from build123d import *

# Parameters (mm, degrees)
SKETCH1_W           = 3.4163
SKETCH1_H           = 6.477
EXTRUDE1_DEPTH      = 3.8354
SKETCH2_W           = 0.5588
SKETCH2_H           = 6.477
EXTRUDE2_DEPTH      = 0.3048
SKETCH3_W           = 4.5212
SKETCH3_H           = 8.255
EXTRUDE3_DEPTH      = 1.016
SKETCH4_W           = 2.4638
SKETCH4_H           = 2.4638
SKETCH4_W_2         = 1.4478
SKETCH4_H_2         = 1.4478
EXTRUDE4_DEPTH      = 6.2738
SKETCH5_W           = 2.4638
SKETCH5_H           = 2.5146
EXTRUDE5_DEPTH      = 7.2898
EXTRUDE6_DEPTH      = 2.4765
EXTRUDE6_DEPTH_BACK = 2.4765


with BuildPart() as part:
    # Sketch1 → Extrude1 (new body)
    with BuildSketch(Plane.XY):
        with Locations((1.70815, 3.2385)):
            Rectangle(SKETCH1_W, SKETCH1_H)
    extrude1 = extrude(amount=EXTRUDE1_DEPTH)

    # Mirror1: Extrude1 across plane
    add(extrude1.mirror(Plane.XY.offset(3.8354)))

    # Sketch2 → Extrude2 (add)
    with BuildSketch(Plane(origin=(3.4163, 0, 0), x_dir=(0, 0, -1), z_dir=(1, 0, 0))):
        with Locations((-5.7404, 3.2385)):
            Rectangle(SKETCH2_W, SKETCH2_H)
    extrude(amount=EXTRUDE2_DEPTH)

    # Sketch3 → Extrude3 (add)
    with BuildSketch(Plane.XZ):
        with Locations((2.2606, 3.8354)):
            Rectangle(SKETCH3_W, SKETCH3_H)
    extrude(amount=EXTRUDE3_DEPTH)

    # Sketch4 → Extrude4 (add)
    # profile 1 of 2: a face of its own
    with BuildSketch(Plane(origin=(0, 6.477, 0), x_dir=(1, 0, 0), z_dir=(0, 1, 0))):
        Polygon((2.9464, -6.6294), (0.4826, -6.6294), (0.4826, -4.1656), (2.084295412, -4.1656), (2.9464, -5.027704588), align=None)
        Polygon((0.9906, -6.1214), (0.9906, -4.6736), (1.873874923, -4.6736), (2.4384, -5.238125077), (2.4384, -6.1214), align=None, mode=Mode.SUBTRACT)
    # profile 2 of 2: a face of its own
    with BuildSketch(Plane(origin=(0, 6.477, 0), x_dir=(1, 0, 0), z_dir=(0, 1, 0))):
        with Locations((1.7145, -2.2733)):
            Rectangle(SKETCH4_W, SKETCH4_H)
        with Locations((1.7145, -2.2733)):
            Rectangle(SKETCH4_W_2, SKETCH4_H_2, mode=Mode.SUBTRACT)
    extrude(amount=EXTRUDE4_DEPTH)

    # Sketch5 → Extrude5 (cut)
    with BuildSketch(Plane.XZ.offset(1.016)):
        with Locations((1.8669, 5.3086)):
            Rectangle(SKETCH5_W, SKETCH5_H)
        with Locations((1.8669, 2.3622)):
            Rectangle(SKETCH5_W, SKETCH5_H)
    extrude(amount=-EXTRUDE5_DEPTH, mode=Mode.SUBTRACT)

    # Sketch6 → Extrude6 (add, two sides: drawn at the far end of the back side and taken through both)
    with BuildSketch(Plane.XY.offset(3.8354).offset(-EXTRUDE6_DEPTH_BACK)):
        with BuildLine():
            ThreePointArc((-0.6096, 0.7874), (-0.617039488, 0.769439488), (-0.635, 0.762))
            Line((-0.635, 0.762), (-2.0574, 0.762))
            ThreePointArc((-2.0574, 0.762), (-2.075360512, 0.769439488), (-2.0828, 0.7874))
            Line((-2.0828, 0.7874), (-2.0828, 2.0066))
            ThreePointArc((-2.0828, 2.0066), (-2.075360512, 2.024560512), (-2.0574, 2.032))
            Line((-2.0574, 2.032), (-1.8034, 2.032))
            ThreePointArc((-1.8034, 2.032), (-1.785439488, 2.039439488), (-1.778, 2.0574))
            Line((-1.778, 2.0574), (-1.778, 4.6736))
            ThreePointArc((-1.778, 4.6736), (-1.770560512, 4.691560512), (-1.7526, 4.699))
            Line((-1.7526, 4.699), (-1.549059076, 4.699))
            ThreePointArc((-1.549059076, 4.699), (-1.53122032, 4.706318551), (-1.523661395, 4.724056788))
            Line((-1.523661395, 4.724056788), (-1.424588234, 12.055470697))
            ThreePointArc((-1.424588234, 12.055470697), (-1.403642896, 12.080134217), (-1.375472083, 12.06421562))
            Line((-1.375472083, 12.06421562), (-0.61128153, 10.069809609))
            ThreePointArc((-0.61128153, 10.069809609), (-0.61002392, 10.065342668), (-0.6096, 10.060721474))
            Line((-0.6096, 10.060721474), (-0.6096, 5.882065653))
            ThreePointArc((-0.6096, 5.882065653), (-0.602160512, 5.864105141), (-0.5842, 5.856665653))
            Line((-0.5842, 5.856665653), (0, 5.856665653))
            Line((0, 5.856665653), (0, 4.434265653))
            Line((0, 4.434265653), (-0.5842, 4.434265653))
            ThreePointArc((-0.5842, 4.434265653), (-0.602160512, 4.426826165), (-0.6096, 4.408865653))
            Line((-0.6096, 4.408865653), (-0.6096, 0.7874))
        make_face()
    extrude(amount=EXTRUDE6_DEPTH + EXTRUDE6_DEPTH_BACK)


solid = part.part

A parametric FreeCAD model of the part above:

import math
import FreeCAD as App
import Part
import Sketcher

V = App.Vector
Q = App.Units.Quantity

doc = App.newDocument("Part")
params = doc.addObject("Spreadsheet::Sheet", "Params")
for row, (alias, value) in enumerate([
    ("sketch1_height", "0.255 in"),
    ("pad1_length", "0.151 in"),
    ("sketch2_width", "0.255 in"),
    ("sketch2_height", "0.022 in"),
    ("pad2_length", "0.012 in"),
    ("sketch3_width", "0.178 in"),
    ("sketch3_height", "0.325 in"),
    ("pad3_length", "0.04 in"),
    ("sketch4_width", "0.097 in"),
    ("sketch4_width2", "0.057 in"),
    ("sketch4_length", "0.048 in"),
    ("pad4_length", "0.247 in"),
    ("sketch5_width", "0.097 in"),
    ("sketch5_height", "0.099 in"),
    ("pocket1_length", "0.287 in"),
    ("sketch6_radius", "0.001 in"),
    ("sketch6_width", "0.01 in"),
    ("sketch6_width2", "0.023 in"),
    ("sketch6_width3", "0.056 in"),
    ("sketch6_height", "0.103 in"),
    ("pad5_length", "0.0975 in"),
    ("pad5_length2", "0.0975 in"),
], start=1):
    params.set(f"A{row}", alias)
    params.set(f"B{row}", "=" + value)
    params.setAlias(f"B{row}", alias)

body = doc.addObject("PartDesign::Body", "Body")

sketch1 = body.newObject("Sketcher::SketchObject", "Sketch")
sketch1.AttachmentSupport = (doc.getObject("XY_Plane"), [""])
sketch1.MapMode = "FlatFace"
sketch1.addGeometry(Part.LineSegment(V(0, 6.5, 0), V(0, 0, 0)), False)
sketch1.addGeometry(Part.LineSegment(V(0, 0, 0), V(3.4, 0, 0)), False)
sketch1.addGeometry(Part.LineSegment(V(3.4, 0, 0), V(3.4, 6.5, 0)), False)
sketch1.addGeometry(Part.LineSegment(V(3.4, 6.5, 0), V(0, 6.5, 0)), False)
sketch1.addConstraint(Sketcher.Constraint("Coincident", 0, 2, 1, 1))
sketch1.addConstraint(Sketcher.Constraint("Coincident", 1, 2, 2, 1))
sketch1.addConstraint(Sketcher.Constraint("Coincident", 2, 2, 3, 1))
sketch1.addConstraint(Sketcher.Constraint("Coincident", 3, 2, 0, 1))
sketch1.addConstraint(Sketcher.Constraint("Vertical", 0))
sketch1.addConstraint(Sketcher.Constraint("Horizontal", 1))
sketch1.addConstraint(Sketcher.Constraint("Vertical", 2))
sketch1.addConstraint(Sketcher.Constraint("Horizontal", 3))
sketch1.addConstraint(Sketcher.Constraint("Coincident", 0, 2, -1, 1))
sketch1.addConstraint(Sketcher.Constraint("DistanceY", 0, 2, 0, 1, Q("0.255 in")))
sketch1.addConstraint(Sketcher.Constraint("DistanceX", 1, 1, 1, 2, Q("0.1345 in")))
sketch1.setExpression("Constraints[9]", "Params.sketch1_height")
pad1 = body.newObject("PartDesign::Pad", "Pad")
pad1.Profile = sketch1
pad1.setExpression("Length", "Params.pad1_length")
doc.recompute()

datumplane = body.newObject("PartDesign::Plane", "DatumPlane")
datumplane.AttachmentSupport = (doc.getObject("XY_Plane"), [""])
datumplane.MapMode = "FlatFace"
datumplane.AttachmentOffset = App.Placement(V(0, 0, 0.151 * 25.4), App.Rotation())
mirrored = body.newObject("PartDesign::Mirrored", "Mirrored")
mirrored.Originals = [pad1]
mirrored.MirrorPlane = (datumplane, [""])
body.Tip = mirrored

sketch2 = body.newObject("Sketcher::SketchObject", "Sketch001")
sketch2.AttachmentSupport = (doc.getObject("YZ_Plane"), [""])
sketch2.MapMode = "FlatFace"
sketch2.AttachmentOffset = App.Placement(V(0, 0, 0.1345 * 25.4), App.Rotation())
sketch2.addGeometry(Part.LineSegment(V(6.5, 6, 0), V(0, 6, 0)), False)
sketch2.addGeometry(Part.LineSegment(V(0, 6, 0), V(0, 5.5, 0)), False)
sketch2.addGeometry(Part.LineSegment(V(0, 5.5, 0), V(6.5, 5.5, 0)), False)
sketch2.addGeometry(Part.LineSegment(V(6.5, 5.5, 0), V(6.5, 6, 0)), False)
sketch2.addConstraint(Sketcher.Constraint("Coincident", 0, 2, 1, 1))
sketch2.addConstraint(Sketcher.Constraint("Coincident", 1, 2, 2, 1))
sketch2.addConstraint(Sketcher.Constraint("Coincident", 2, 2, 3, 1))
sketch2.addConstraint(Sketcher.Constraint("Coincident", 3, 2, 0, 1))
sketch2.addConstraint(Sketcher.Constraint("Horizontal", 0))
sketch2.addConstraint(Sketcher.Constraint("Vertical", 1))
sketch2.addConstraint(Sketcher.Constraint("Horizontal", 2))
sketch2.addConstraint(Sketcher.Constraint("Vertical", 3))
sketch2.addConstraint(Sketcher.Constraint("PointOnObject", 0, 2, -2))
sketch2.addConstraint(Sketcher.Constraint("DistanceX", 0, 2, 0, 1, Q("0.255 in")))
sketch2.addConstraint(Sketcher.Constraint("DistanceY", 1, 2, 1, 1, Q("0.022 in")))
sketch2.addConstraint(Sketcher.Constraint("DistanceY", -1, 1, 0, 2, Q("0.237 in")))
sketch2.setExpression("Constraints[9]", "Params.sketch2_width")
sketch2.setExpression("Constraints[10]", "Params.sketch2_height")
pad2 = body.newObject("PartDesign::Pad", "Pad001")
pad2.Profile = sketch2
pad2.setExpression("Length", "Params.pad2_length")

sketch3 = body.newObject("Sketcher::SketchObject", "Sketch002")
sketch3.AttachmentSupport = (doc.getObject("XZ_Plane"), [""])
sketch3.MapMode = "FlatFace"
sketch3.addGeometry(Part.LineSegment(V(0, 8, 0), V(0, -0.3, 0)), False)
sketch3.addGeometry(Part.LineSegment(V(0, -0.3, 0), V(4.5, -0.3, 0)), False)
sketch3.addGeometry(Part.LineSegment(V(4.5, -0.3, 0), V(4.5, 8, 0)), False)
sketch3.addGeometry(Part.LineSegment(V(4.5, 8, 0), V(0, 8, 0)), False)
sketch3.addConstraint(Sketcher.Constraint("Coincident", 0, 2, 1, 1))
sketch3.addConstraint(Sketcher.Constraint("Coincident", 1, 2, 2, 1))
sketch3.addConstraint(Sketcher.Constraint("Coincident", 2, 2, 3, 1))
sketch3.addConstraint(Sketcher.Constraint("Coincident", 3, 2, 0, 1))
sketch3.addConstraint(Sketcher.Constraint("Vertical", 0))
sketch3.addConstraint(Sketcher.Constraint("Horizontal", 1))
sketch3.addConstraint(Sketcher.Constraint("Vertical", 2))
sketch3.addConstraint(Sketcher.Constraint("Horizontal", 3))
sketch3.addConstraint(Sketcher.Constraint("PointOnObject", 0, 2, -2))
sketch3.addConstraint(Sketcher.Constraint("DistanceX", 1, 1, 1, 2, Q("0.178 in")))
sketch3.addConstraint(Sketcher.Constraint("DistanceY", 0, 2, 0, 1, Q("0.325 in")))
sketch3.addConstraint(Sketcher.Constraint("DistanceY", 0, 2, -1, 1, Q("0.0115 in")))
sketch3.setExpression("Constraints[9]", "Params.sketch3_width")
sketch3.setExpression("Constraints[10]", "Params.sketch3_height")
pad3 = body.newObject("PartDesign::Pad", "Pad002")
pad3.Profile = sketch3
pad3.setExpression("Length", "Params.pad3_length")

sketch4 = body.newObject("Sketcher::SketchObject", "Sketch003")
sketch4.AttachmentSupport = (doc.getObject("XZ_Plane"), [""])
sketch4.MapMode = "FlatFace"
sketch4.AttachmentOffset = App.Placement(V(0, 0, -0.255 * 25.4), App.Rotation())
sketch4.addGeometry(Part.LineSegment(V(0.5, 6.6, 0), V(2.9, 6.6, 0)), False)
sketch4.addGeometry(Part.LineSegment(V(2.9, 6.6, 0), V(2.9, 5, 0)), False)
sketch4.addGeometry(Part.LineSegment(V(2.9, 5, 0), V(2.1, 4.2, 0)), False)
sketch4.addGeometry(Part.LineSegment(V(2.1, 4.2, 0), V(0.5, 4.2, 0)), False)
sketch4.addGeometry(Part.LineSegment(V(0.5, 4.2, 0), V(0.5, 6.6, 0)), False)
sketch4.addGeometry(Part.LineSegment(V(1, 6.1, 0), V(1, 4.7, 0)), False)
sketch4.addGeometry(Part.LineSegment(V(1, 4.7, 0), V(1.9, 4.7, 0)), False)
sketch4.addGeometry(Part.LineSegment(V(1.9, 4.7, 0), V(2.4, 5.2, 0)), False)
sketch4.addGeometry(Part.LineSegment(V(2.4, 5.2, 0), V(2.4, 6.1, 0)), False)
sketch4.addGeometry(Part.LineSegment(V(2.4, 6.1, 0), V(1, 6.1, 0)), False)
sketch4.addGeometry(Part.LineSegment(V(0.5, 1, 0), V(0.5, 3.5, 0)), False)
sketch4.addGeometry(Part.LineSegment(V(0.5, 3.5, 0), V(2.9, 3.5, 0)), False)
sketch4.addGeometry(Part.LineSegment(V(2.9, 3.5, 0), V(2.9, 1, 0)), False)
sketch4.addGeometry(Part.LineSegment(V(2.9, 1, 0), V(0.5, 1, 0)), False)
sketch4.addGeometry(Part.LineSegment(V(2.4, 3, 0), V(1, 3, 0)), False)
sketch4.addGeometry(Part.LineSegment(V(1, 3, 0), V(1, 1.5, 0)), False)
sketch4.addGeometry(Part.LineSegment(V(1, 1.5, 0), V(2.4, 1.5, 0)), False)
sketch4.addGeometry(Part.LineSegment(V(2.4, 1.5, 0), V(2.4, 3, 0)), False)
sketch4.addConstraint(Sketcher.Constraint("Coincident", 0, 2, 1, 1))
sketch4.addConstraint(Sketcher.Constraint("Coincident", 1, 2, 2, 1))
sketch4.addConstraint(Sketcher.Constraint("Coincident", 2, 2, 3, 1))
sketch4.addConstraint(Sketcher.Constraint("Coincident", 3, 2, 4, 1))
sketch4.addConstraint(Sketcher.Constraint("Coincident", 4, 2, 0, 1))
sketch4.addConstraint(Sketcher.Constraint("Coincident", 5, 2, 6, 1))
sketch4.addConstraint(Sketcher.Constraint("Coincident", 6, 2, 7, 1))
sketch4.addConstraint(Sketcher.Constraint("Coincident", 7, 2, 8, 1))
sketch4.addConstraint(Sketcher.Constraint("Coincident", 8, 2, 9, 1))
sketch4.addConstraint(Sketcher.Constraint("Coincident", 9, 2, 5, 1))
sketch4.addConstraint(Sketcher.Constraint("Coincident", 10, 2, 11, 1))
sketch4.addConstraint(Sketcher.Constraint("Coincident", 11, 2, 12, 1))
sketch4.addConstraint(Sketcher.Constraint("Coincident", 12, 2, 13, 1))
sketch4.addConstraint(Sketcher.Constraint("Coincident", 13, 2, 10, 1))
sketch4.addConstraint(Sketcher.Constraint("Coincident", 14, 2, 15, 1))
sketch4.addConstraint(Sketcher.Constraint("Coincident", 15, 2, 16, 1))
sketch4.addConstraint(Sketcher.Constraint("Coincident", 16, 2, 17, 1))
sketch4.addConstraint(Sketcher.Constraint("Coincident", 17, 2, 14, 1))
sketch4.addConstraint(Sketcher.Constraint("Horizontal", 0))
sketch4.addConstraint(Sketcher.Constraint("Vertical", 1))
sketch4.addConstraint(Sketcher.Constraint("Horizontal", 3))
sketch4.addConstraint(Sketcher.Constraint("Vertical", 4))
sketch4.addConstraint(Sketcher.Constraint("Vertical", 5))
sketch4.addConstraint(Sketcher.Constraint("Horizontal", 6))
sketch4.addConstraint(Sketcher.Constraint("Vertical", 8))
sketch4.addConstraint(Sketcher.Constraint("Horizontal", 9))
sketch4.addConstraint(Sketcher.Constraint("Vertical", 10))
sketch4.addConstraint(Sketcher.Constraint("Horizontal", 11))
sketch4.addConstraint(Sketcher.Constraint("Vertical", 12))
sketch4.addConstraint(Sketcher.Constraint("Horizontal", 13))
sketch4.addConstraint(Sketcher.Constraint("Horizontal", 14))
sketch4.addConstraint(Sketcher.Constraint("Vertical", 15))
sketch4.addConstraint(Sketcher.Constraint("Horizontal", 16))
sketch4.addConstraint(Sketcher.Constraint("Vertical", 17))
sketch4.addConstraint(Sketcher.Constraint("Parallel", 2, 7))
sketch4.addConstraint(Sketcher.Constraint("Vertical", 4, 2, 10, 2))
sketch4.addConstraint(Sketcher.Constraint("Vertical", 1, 2, 11, 2))
sketch4.addConstraint(Sketcher.Constraint("Vertical", 9, 2, 14, 2))
sketch4.addConstraint(Sketcher.Constraint("Vertical", 8, 2, 16, 2))
sketch4.addConstraint(Sketcher.Constraint("Equal", 3, 1))
sketch4.addConstraint(Sketcher.Constraint("Equal", 13, 4))
sketch4.addConstraint(Sketcher.Constraint("Equal", 16, 5))
sketch4.addConstraint(Sketcher.Constraint("Equal", 4, 10))
sketch4.addConstraint(Sketcher.Constraint("Equal", 5, 15))
sketch4.addConstraint(Sketcher.Constraint("DistanceX", 0, 1, 0, 2, Q("0.097 in")))
sketch4.addConstraint(Sketcher.Constraint("DistanceX", 9, 2, 9, 1, Q("0.057 in")))
sketch4.addConstraint(Sketcher.Constraint("DistanceX", 3, 2, 5, 2, Q("0.02 in")))
sketch4.addConstraint(Sketcher.Constraint("DistanceY", 3, 2, 5, 2, Q("0.02 in")))
sketch4.addConstraint(Sketcher.Constraint("DistanceY", 14, 2, 10, 2, Q("0.02 in")))
sketch4.addConstraint(Sketcher.Constraint("Distance", 2, Q("0.048 in")))
sketch4.addConstraint(Sketcher.Constraint("DistanceX", -1, 1, 0, 2, Q("0.116 in")))
sketch4.addConstraint(Sketcher.Constraint("DistanceY", -1, 1, 0, 2, Q("0.261 in")))
sketch4.addConstraint(Sketcher.Constraint("DistanceY", -1, 1, 10, 2, Q("0.138 in")))
sketch4.addConstraint(Sketcher.Constraint("Distance", 7, 0.798359))
sketch4.setExpression("Constraints[44]", "Params.sketch4_width")
sketch4.setExpression("Constraints[45]", "Params.sketch4_width2")
sketch4.setExpression("Constraints[49]", "Params.sketch4_length")
pad4 = body.newObject("PartDesign::Pad", "Pad003")
pad4.Profile = sketch4
pad4.setExpression("Length", "Params.pad4_length")
pad4.Reversed = True

sketch5 = body.newObject("Sketcher::SketchObject", "Sketch004")
sketch5.AttachmentSupport = (doc.getObject("XZ_Plane"), [""])
sketch5.MapMode = "FlatFace"
sketch5.AttachmentOffset = App.Placement(V(0, 0, 0.04 * 25.4), App.Rotation())
sketch5.addGeometry(Part.LineSegment(V(0.6, 6.6, 0), V(0.6, 4.1, 0)), False)
sketch5.addGeometry(Part.LineSegment(V(0.6, 4.1, 0), V(3.1, 4.1, 0)), False)
sketch5.addGeometry(Part.LineSegment(V(3.1, 4.1, 0), V(3.1, 6.6, 0)), False)
sketch5.addGeometry(Part.LineSegment(V(3.1, 6.6, 0), V(0.6, 6.6, 0)), False)
sketch5.addGeometry(Part.LineSegment(V(0.6, 3.6, 0), V(0.6, 1.1, 0)), False)
sketch5.addGeometry(Part.LineSegment(V(0.6, 1.1, 0), V(3.1, 1.1, 0)), False)
sketch5.addGeometry(Part.LineSegment(V(3.1, 1.1, 0), V(3.1, 3.6, 0)), False)
sketch5.addGeometry(Part.LineSegment(V(3.1, 3.6, 0), V(0.6, 3.6, 0)), False)
sketch5.addConstraint(Sketcher.Constraint("Coincident", 0, 2, 1, 1))
sketch5.addConstraint(Sketcher.Constraint("Coincident", 1, 2, 2, 1))
sketch5.addConstraint(Sketcher.Constraint("Coincident", 2, 2, 3, 1))
sketch5.addConstraint(Sketcher.Constraint("Coincident", 3, 2, 0, 1))
sketch5.addConstraint(Sketcher.Constraint("Coincident", 4, 2, 5, 1))
sketch5.addConstraint(Sketcher.Constraint("Coincident", 5, 2, 6, 1))
sketch5.addConstraint(Sketcher.Constraint("Coincident", 6, 2, 7, 1))
sketch5.addConstraint(Sketcher.Constraint("Coincident", 7, 2, 4, 1))
sketch5.addConstraint(Sketcher.Constraint("Vertical", 0))
sketch5.addConstraint(Sketcher.Constraint("Horizontal", 1))
sketch5.addConstraint(Sketcher.Constraint("Vertical", 2))
sketch5.addConstraint(Sketcher.Constraint("Horizontal", 3))
sketch5.addConstraint(Sketcher.Constraint("Vertical", 4))
sketch5.addConstraint(Sketcher.Constraint("Horizontal", 5))
sketch5.addConstraint(Sketcher.Constraint("Vertical", 6))
sketch5.addConstraint(Sketcher.Constraint("Horizontal", 7))
sketch5.addConstraint(Sketcher.Constraint("Vertical", 3, 2, 4, 2))
sketch5.addConstraint(Sketcher.Constraint("Vertical", 2, 2, 5, 2))
sketch5.addConstraint(Sketcher.Constraint("Equal", 2, 4))
sketch5.addConstraint(Sketcher.Constraint("DistanceX", 1, 1, 1, 2, Q("0.097 in")))
sketch5.addConstraint(Sketcher.Constraint("DistanceY", 0, 2, 0, 1, Q("0.099 in")))
sketch5.addConstraint(Sketcher.Constraint("DistanceX", -1, 1, 0, 2, Q("0.025 in")))
sketch5.addConstraint(Sketcher.Constraint("DistanceY", 4, 2, 0, 2, Q("0.116 in")))
sketch5.addConstraint(Sketcher.Constraint("DistanceY", -1, 1, 0, 2, Q("0.1595 in")))
sketch5.setExpression("Constraints[19]", "Params.sketch5_width")
sketch5.setExpression("Constraints[20]", "Params.sketch5_height")
pocket1 = body.newObject("PartDesign::Pocket", "Pocket")
pocket1.Profile = sketch5
pocket1.setExpression("Length", "Params.pocket1_length")

sketch6 = body.newObject("Sketcher::SketchObject", "Sketch005")
sketch6.AttachmentSupport = (doc.getObject("XY_Plane"), [""])
sketch6.MapMode = "FlatFace"
sketch6.AttachmentOffset = App.Placement(V(0, 0, 0.151 * 25.4), App.Rotation())
sketch6.addGeometry(Part.ArcOfCircle(Part.Circle(V(-0.635, 0.787, 0), V(0, 0, 1), 0.025), math.radians(-90), math.radians(0)), False)
sketch6.addGeometry(Part.LineSegment(V(-0.61, 0.787, 0), V(-0.61, 4.409, 0)), False)
sketch6.addGeometry(Part.ArcOfCircle(Part.Circle(V(-0.584, 4.409, 0), V(0, 0, 1), 0.025), math.radians(90), math.radians(180)), False)
sketch6.addGeometry(Part.LineSegment(V(-0.584, 4.434, 0), V(0, 4.434, 0)), False)
sketch6.addGeometry(Part.LineSegment(V(0, 4.434, 0), V(0, 5.857, 0)), False)
sketch6.addGeometry(Part.LineSegment(V(0, 5.857, 0), V(-0.584, 5.857, 0)), False)
sketch6.addGeometry(Part.ArcOfCircle(Part.Circle(V(-0.584, 5.882, 0), V(0, 0, 1), 0.025), math.radians(-180), math.radians(-90)), False)
sketch6.addGeometry(Part.LineSegment(V(-0.61, 5.882, 0), V(-0.61, 10.061, 0)), False)
sketch6.addGeometry(Part.ArcOfCircle(Part.Circle(V(-0.635, 10.061, 0), V(0, 0, 1), 0.025), math.radians(0), math.radians(21)), False)
sketch6.addGeometry(Part.LineSegment(V(-0.611, 10.07, 0), V(-1.375, 12.064, 0)), False)
sketch6.addGeometry(Part.ArcOfCircle(Part.Circle(V(-1.399, 12.055, 0), V(0, 0, 1), 0.025), math.radians(21), math.radians(179)), False)
sketch6.addGeometry(Part.LineSegment(V(-1.425, 12.055, 0), V(-1.524, 4.724, 0)), False)
sketch6.addGeometry(Part.ArcOfCircle(Part.Circle(V(-1.549, 4.724, 0), V(0, 0, 1), 0.025), math.radians(-90), math.radians(-1)), False)
sketch6.addGeometry(Part.LineSegment(V(-1.549, 4.699, 0), V(-1.753, 4.699, 0)), False)
sketch6.addGeometry(Part.ArcOfCircle(Part.Circle(V(-1.753, 4.674, 0), V(0, 0, 1), 0.025), math.radians(90), math.radians(180)), False)
sketch6.addGeometry(Part.LineSegment(V(-1.778, 4.674, 0), V(-1.778, 2.057, 0)), False)
sketch6.addGeometry(Part.ArcOfCircle(Part.Circle(V(-1.803, 2.057, 0), V(0, 0, 1), 0.025), math.radians(-90), math.radians(0)), False)
sketch6.addGeometry(Part.LineSegment(V(-1.803, 2.032, 0), V(-2.057, 2.032, 0)), False)
sketch6.addGeometry(Part.ArcOfCircle(Part.Circle(V(-2.057, 2.007, 0), V(0, 0, 1), 0.025), math.radians(90), math.radians(180)), False)
sketch6.addGeometry(Part.LineSegment(V(-2.083, 2.007, 0), V(-2.083, 0.787, 0)), False)
sketch6.addGeometry(Part.ArcOfCircle(Part.Circle(V(-2.057, 0.787, 0), V(0, 0, 1), 0.025), math.radians(-180), math.radians(-90)), False)
sketch6.addGeometry(Part.LineSegment(V(-2.057, 0.762, 0), V(-0.635, 0.762, 0)), False)
sketch6.addConstraint(Sketcher.Constraint("Tangent", 0, 2, 1, 1))
sketch6.addConstraint(Sketcher.Constraint("Tangent", 1, 2, 2, 2))
sketch6.addConstraint(Sketcher.Constraint("Tangent", 2, 1, 3, 1))
sketch6.addConstraint(Sketcher.Constraint("Coincident", 3, 2, 4, 1))
sketch6.addConstraint(Sketcher.Constraint("Coincident", 4, 2, 5, 1))
sketch6.addConstraint(Sketcher.Constraint("Tangent", 5, 2, 6, 2))
sketch6.addConstraint(Sketcher.Constraint("Tangent", 6, 1, 7, 1))
sketch6.addConstraint(Sketcher.Constraint("Tangent", 7, 2, 8, 1))
sketch6.addConstraint(Sketcher.Constraint("Tangent", 8, 2, 9, 1))
sketch6.addConstraint(Sketcher.Constraint("Tangent", 9, 2, 10, 1))
sketch6.addConstraint(Sketcher.Constraint("Tangent", 10, 2, 11, 1))
sketch6.addConstraint(Sketcher.Constraint("Tangent", 11, 2, 12, 2))
sketch6.addConstraint(Sketcher.Constraint("Tangent", 12, 1, 13, 1))
sketch6.addConstraint(Sketcher.Constraint("Tangent", 13, 2, 14, 1))
sketch6.addConstraint(Sketcher.Constraint("Tangent", 14, 2, 15, 1))
sketch6.addConstraint(Sketcher.Constraint("Tangent", 15, 2, 16, 2))
sketch6.addConstraint(Sketcher.Constraint("Tangent", 16, 1, 17, 1))
sketch6.addConstraint(Sketcher.Constraint("Tangent", 17, 2, 18, 1))
sketch6.addConstraint(Sketcher.Constraint("Tangent", 18, 2, 19, 1))
sketch6.addConstraint(Sketcher.Constraint("Tangent", 19, 2, 20, 1))
sketch6.addConstraint(Sketcher.Constraint("Tangent", 20, 2, 21, 1))
sketch6.addConstraint(Sketcher.Constraint("Tangent", 21, 2, 0, 1))
sketch6.addConstraint(Sketcher.Constraint("Vertical", 1))
sketch6.addConstraint(Sketcher.Constraint("Horizontal", 3))
sketch6.addConstraint(Sketcher.Constraint("Vertical", 4))
sketch6.addConstraint(Sketcher.Constraint("Horizontal", 5))
sketch6.addConstraint(Sketcher.Constraint("Vertical", 7))
sketch6.addConstraint(Sketcher.Constraint("Horizontal", 13))
sketch6.addConstraint(Sketcher.Constraint("Vertical", 15))
sketch6.addConstraint(Sketcher.Constraint("Horizontal", 17))
sketch6.addConstraint(Sketcher.Constraint("Vertical", 19))
sketch6.addConstraint(Sketcher.Constraint("Horizontal", 21))
sketch6.addConstraint(Sketcher.Constraint("Equal", 0, 2))
sketch6.addConstraint(Sketcher.Constraint("Equal", 2, 6))
sketch6.addConstraint(Sketcher.Constraint("Equal", 6, 8))
sketch6.addConstraint(Sketcher.Constraint("Equal", 8, 10))
sketch6.addConstraint(Sketcher.Constraint("Equal", 10, 12))
sketch6.addConstraint(Sketcher.Constraint("Equal", 12, 14))
sketch6.addConstraint(Sketcher.Constraint("Equal", 14, 16))
sketch6.addConstraint(Sketcher.Constraint("Equal", 16, 18))
sketch6.addConstraint(Sketcher.Constraint("Equal", 18, 20))
sketch6.addConstraint(Sketcher.Constraint("PointOnObject", 3, 2, -2))
sketch6.addConstraint(Sketcher.Constraint("Vertical", 2, 3, 6, 3))
sketch6.addConstraint(Sketcher.Constraint("Equal", 21, 4))
sketch6.addConstraint(Sketcher.Constraint("Radius", 0, Q("0.001 in")))
sketch6.addConstraint(Sketcher.Constraint("DistanceX", 17, 2, 17, 1, Q("0.01 in")))
sketch6.addConstraint(Sketcher.Constraint("DistanceX", 3, 1, 3, 2, Q("0.023 in")))
sketch6.addConstraint(Sketcher.Constraint("DistanceX", 21, 1, 21, 2, Q("0.056 in")))
sketch6.addConstraint(Sketcher.Constraint("DistanceY", 15, 2, 15, 1, Q("0.103 in")))
sketch6.addConstraint(Sketcher.Constraint("DistanceY", 19, 2, 19, 1, Q("0.048 in")))
sketch6.addConstraint(Sketcher.Constraint("DistanceY", -1, 1, 16, 1, Q("0.08 in")))
sketch6.addConstraint(Sketcher.Constraint("Distance", 9, 2.1358))
sketch6.addConstraint(Sketcher.Constraint("DistanceX", 13, 2, 13, 1, 0.203541))
sketch6.addConstraint(Sketcher.Constraint("DistanceY", 1, 1, 1, 2, 3.621466))
sketch6.addConstraint(Sketcher.Constraint("DistanceY", 7, 1, 7, 2, 4.178656))
sketch6.addConstraint(Sketcher.Constraint("DistanceX", 10, 3, -1, 1, 1.399191))
sketch6.setExpression("Constraints[44]", "Params.sketch6_radius")
sketch6.setExpression("Constraints[45]", "Params.sketch6_width")
sketch6.setExpression("Constraints[46]", "Params.sketch6_width2")
sketch6.setExpression("Constraints[47]", "Params.sketch6_width3")
sketch6.setExpression("Constraints[48]", "Params.sketch6_height")
pad5 = body.newObject("PartDesign::Pad", "Pad004")
pad5.Profile = sketch6
pad5.Type = "TwoLengths"
pad5.setExpression("Length", "Params.pad5_length")
pad5.setExpression("Length2", "Params.pad5_length2")

doc.recompute()
